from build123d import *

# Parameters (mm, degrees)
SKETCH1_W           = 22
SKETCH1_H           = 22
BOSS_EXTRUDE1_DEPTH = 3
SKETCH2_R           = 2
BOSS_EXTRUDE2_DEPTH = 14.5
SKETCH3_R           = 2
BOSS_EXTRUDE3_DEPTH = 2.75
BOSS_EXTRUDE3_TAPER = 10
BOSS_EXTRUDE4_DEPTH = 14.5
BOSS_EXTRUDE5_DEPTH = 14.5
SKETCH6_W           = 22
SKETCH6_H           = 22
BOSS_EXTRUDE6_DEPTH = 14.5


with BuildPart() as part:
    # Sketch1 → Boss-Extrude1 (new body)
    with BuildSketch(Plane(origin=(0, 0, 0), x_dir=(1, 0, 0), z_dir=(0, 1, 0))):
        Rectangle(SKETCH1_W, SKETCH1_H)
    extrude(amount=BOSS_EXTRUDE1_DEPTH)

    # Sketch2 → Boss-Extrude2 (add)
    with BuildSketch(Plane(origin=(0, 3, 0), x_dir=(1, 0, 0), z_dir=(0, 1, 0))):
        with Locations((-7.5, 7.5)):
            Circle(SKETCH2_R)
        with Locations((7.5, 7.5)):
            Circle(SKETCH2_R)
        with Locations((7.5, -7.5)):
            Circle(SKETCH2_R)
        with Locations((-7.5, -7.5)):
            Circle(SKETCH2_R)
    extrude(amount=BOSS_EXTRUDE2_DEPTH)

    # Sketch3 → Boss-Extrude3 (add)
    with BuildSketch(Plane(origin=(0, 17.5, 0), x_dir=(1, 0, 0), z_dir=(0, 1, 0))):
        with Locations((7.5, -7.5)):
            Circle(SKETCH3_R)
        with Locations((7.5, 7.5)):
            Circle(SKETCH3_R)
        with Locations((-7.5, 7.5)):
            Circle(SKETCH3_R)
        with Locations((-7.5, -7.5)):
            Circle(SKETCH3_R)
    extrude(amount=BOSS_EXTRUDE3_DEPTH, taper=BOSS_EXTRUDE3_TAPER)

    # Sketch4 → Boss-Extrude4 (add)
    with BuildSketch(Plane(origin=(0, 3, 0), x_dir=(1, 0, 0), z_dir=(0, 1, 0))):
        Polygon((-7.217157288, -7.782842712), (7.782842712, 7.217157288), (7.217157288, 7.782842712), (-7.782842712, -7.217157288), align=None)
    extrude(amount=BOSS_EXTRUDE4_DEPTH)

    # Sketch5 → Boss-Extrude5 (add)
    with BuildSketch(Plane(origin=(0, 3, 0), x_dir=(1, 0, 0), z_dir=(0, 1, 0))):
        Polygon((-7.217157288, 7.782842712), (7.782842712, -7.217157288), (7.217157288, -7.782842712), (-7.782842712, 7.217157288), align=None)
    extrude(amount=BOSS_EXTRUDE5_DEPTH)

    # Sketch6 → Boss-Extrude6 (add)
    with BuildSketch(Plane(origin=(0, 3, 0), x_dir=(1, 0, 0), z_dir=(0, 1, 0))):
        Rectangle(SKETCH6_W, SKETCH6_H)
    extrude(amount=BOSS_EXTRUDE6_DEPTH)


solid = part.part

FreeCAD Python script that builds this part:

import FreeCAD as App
import Part
import Sketcher
from FreeCAD import Vector
Q = App.Units.Quantity

doc = App.newDocument("Part")
body = doc.addObject("PartDesign::Body", "Body")

# Sketch on XZ plane
sketch1 = body.newObject("Sketcher::SketchObject", "Sketch")
sketch1.AttachmentSupport = (doc.getObject("XZ_Plane"), [""])
sketch1.MapMode = "FlatFace"
sketch1.addGeometry(Part.LineSegment(Vector(-11, -11, 0), Vector(-11, 11, 0)), False)
sketch1.addGeometry(Part.LineSegment(Vector(-11, 11, 0), Vector(11, 11, 0)), False)
sketch1.addGeometry(Part.LineSegment(Vector(11, 11, 0), Vector(11, -11, 0)), False)
sketch1.addGeometry(Part.LineSegment(Vector(11, -11, 0), Vector(-11, -11, 0)), False)
sketch1.addConstraint(Sketcher.Constraint("Coincident", 0, 2, 1, 1))
sketch1.addConstraint(Sketcher.Constraint("Coincident", 1, 2, 2, 1))
sketch1.addConstraint(Sketcher.Constraint("Coincident", 2, 2, 3, 1))
sketch1.addConstraint(Sketcher.Constraint("Coincident", 3, 2, 0, 1))
sketch1.addConstraint(Sketcher.Constraint("Vertical", 0))
sketch1.addConstraint(Sketcher.Constraint("Horizontal", 1))
sketch1.addConstraint(Sketcher.Constraint("Vertical", 2))
sketch1.addConstraint(Sketcher.Constraint("Horizontal", 3))
sketch1.addConstraint(Sketcher.Constraint("Symmetric", 0, 2, 2, 2, -1, 1))
sketch1.addConstraint(Sketcher.Constraint("Equal", 3, 0))
sketch1.addConstraint(Sketcher.Constraint("DistanceX", 1, 1, 1, 2, Q("22 mm")))
pad1 = body.newObject("PartDesign::Pad", "Pad")
pad1.Profile = sketch1
pad1.Length = 3
pad1.Reversed = True

# Sketch on XZ plane
sketch2 = body.newObject("Sketcher::SketchObject", "Sketch001")
sketch2.AttachmentSupport = (doc.getObject("XZ_Plane"), [""])
sketch2.MapMode = "FlatFace"
sketch2.AttachmentOffset = App.Placement(Vector(0, 0, -3), App.Rotation())
sketch2.addGeometry(Part.Circle(Vector(-7.5, -7.5, 0), Vector(0, 0, 1), 2), False)
sketch2.addGeometry(Part.Circle(Vector(7.5, -7.5, 0), Vector(0, 0, 1), 2), False)
sketch2.addGeometry(Part.Circle(Vector(7.5, 7.5, 0), Vector(0, 0, 1), 2), False)
sketch2.addGeometry(Part.Circle(Vector(-7.5, 7.5, 0), Vector(0, 0, 1), 2), False)
sketch2.addConstraint(Sketcher.Constraint("Equal", 0, 1))
sketch2.addConstraint(Sketcher.Constraint("Equal", 1, 2))
sketch2.addConstraint(Sketcher.Constraint("Equal", 2, 3))
sketch2.addConstraint(Sketcher.Constraint("Symmetric", 0, 3, 2, 3, -1, 1))
sketch2.addConstraint(Sketcher.Constraint("Symmetric", 1, 3, 3, 3, -1, 1))
sketch2.addConstraint(Sketcher.Constraint("Symmetric", 0, 3, 1, 3, -2))
sketch2.addConstraint(Sketcher.Constraint("Diameter", 0, Q("4 mm")))
sketch2.addConstraint(Sketcher.Constraint("DistanceX", 0, 3, 1, 3, Q("15 mm")))
sketch2.addConstraint(Sketcher.Constraint("DistanceY", 1, 3, 2, 3, Q("15 mm")))
pad2 = body.newObject("PartDesign::Pad", "Pad001")
pad2.Profile = sketch2
pad2.Length = 14.5
pad2.Reversed = True

# Sketch on XZ plane
sketch3 = body.newObject("Sketcher::SketchObject", "Sketch002")
sketch3.AttachmentSupport = (doc.getObject("XZ_Plane"), [""])
sketch3.MapMode = "FlatFace"
sketch3.AttachmentOffset = App.Placement(Vector(0, 0, -17.5), App.Rotation())
sketch3.addGeometry(Part.Circle(Vector(7.5, 7.5, 0), Vector(0, 0, 1), 2), False)
sketch3.addGeometry(Part.Circle(Vector(7.5, -7.5, 0), Vector(0, 0, 1), 2), False)
sketch3.addGeometry(Part.Circle(Vector(-7.5, -7.5, 0), Vector(0, 0, 1), 2), False)
sketch3.addGeometry(Part.Circle(Vector(-7.5, 7.5, 0), Vector(0, 0, 1), 2), False)
sketch3.addConstraint(Sketcher.Constraint("Equal", 0, 1))
sketch3.addConstraint(Sketcher.Constraint("Equal", 1, 2))
sketch3.addConstraint(Sketcher.Constraint("Equal", 2, 3))
sketch3.addConstraint(Sketcher.Constraint("Symmetric", 0, 3, 2, 3, -1, 1))
sketch3.addConstraint(Sketcher.Constraint("Symmetric", 1, 3, 3, 3, -1, 1))
sketch3.addConstraint(Sketcher.Constraint("Symmetric", 1, 3, 2, 3, -2))
sketch3.addConstraint(Sketcher.Constraint("Diameter", 0, Q("4 mm")))
sketch3.addConstraint(Sketcher.Constraint("DistanceY", 1, 3, 0, 3, Q("15 mm")))
sketch3.addConstraint(Sketcher.Constraint("DistanceX", 2, 3, 1, 3, Q("15 mm")))
pad3 = body.newObject("PartDesign::Pad", "Pad002")
pad3.Profile = sketch3
pad3.Length = 2.75
pad3.Reversed = True
pad3.TaperAngle = -10

# Sketch on XZ plane
sketch4 = body.newObject("Sketcher::SketchObject", "Sketch003")
sketch4.AttachmentSupport = (doc.getObject("XZ_Plane"), [""])
sketch4.MapMode = "FlatFace"
sketch4.AttachmentOffset = App.Placement(Vector(0, 0, -3), App.Rotation())
sketch4.addGeometry(Part.LineSegment(Vector(-7.217157, 7.782843, 0), Vector(7.782843, -7.217157, 0)), False)
sketch4.addGeometry(Part.LineSegment(Vector(7.782843, -7.217157, 0), Vector(7.217157, -7.782843, 0)), False)
sketch4.addGeometry(Part.LineSegment(Vector(7.217157, -7.782843, 0), Vector(-7.782843, 7.217157, 0)), False)
sketch4.addGeometry(Part.LineSegment(Vector(-7.782843, 7.217157, 0), Vector(-7.217157, 7.782843, 0)), False)
sketch4.addConstraint(Sketcher.Constraint("Coincident", 0, 2, 1, 1))
sketch4.addConstraint(Sketcher.Constraint("Coincident", 1, 2, 2, 1))
sketch4.addConstraint(Sketcher.Constraint("Coincident", 2, 2, 3, 1))
sketch4.addConstraint(Sketcher.Constraint("Coincident", 3, 2, 0, 1))
sketch4.addConstraint(Sketcher.Constraint("Symmetric", 0, 2, 2, 2, -1, 1))
sketch4.addConstraint(Sketcher.Constraint("Symmetric", 1, 2, 3, 2, -1, 1))
sketch4.addConstraint(Sketcher.Constraint("Perpendicular", 0, 1))
sketch4.addConstraint(Sketcher.Constraint("Angle", 0, Q("-45 deg")))
sketch4.addConstraint(Sketcher.Constraint("DistanceX", 2, 2, 1, 2, Q("15 mm")))
sketch4.addConstraint(Sketcher.Constraint("Distance", 1, Q("0.8 mm")))
pad4 = body.newObject("PartDesign::Pad", "Pad003")
pad4.Profile = sketch4
pad4.Length = 14.5
pad4.Reversed = True

# Sketch on XZ plane
sketch5 = body.newObject("Sketcher::SketchObject", "Sketch004")
sketch5.AttachmentSupport = (doc.getObject("XZ_Plane"), [""])
sketch5.MapMode = "FlatFace"
sketch5.AttachmentOffset = App.Placement(Vector(0, 0, -3), App.Rotation())
sketch5.addGeometry(Part.LineSegment(Vector(7.782843, 7.217157, 0), Vector(-7.217157, -7.782843, 0)), False)
sketch5.addGeometry(Part.LineSegment(Vector(-7.217157, -7.782843, 0), Vector(-7.782843, -7.217157, 0)), False)
sketch5.addGeometry(Part.LineSegment(Vector(-7.782843, -7.217157, 0), Vector(7.217157, 7.782843, 0)), False)
sketch5.addGeometry(Part.LineSegment(Vector(7.217157, 7.782843, 0), Vector(7.782843, 7.217157, 0)), False)
sketch5.addConstraint(Sketcher.Constraint("Coincident", 0, 2, 1, 1))
sketch5.addConstraint(Sketcher.Constraint("Coincident", 1, 2, 2, 1))
sketch5.addConstraint(Sketcher.Constraint("Coincident", 2, 2, 3, 1))
sketch5.addConstraint(Sketcher.Constraint("Coincident", 3, 2, 0, 1))
sketch5.addConstraint(Sketcher.Constraint("Symmetric", 0, 2, 2, 2, -1, 1))
sketch5.addConstraint(Sketcher.Constraint("Symmetric", 1, 2, 3, 2, -1, 1))
sketch5.addConstraint(Sketcher.Constraint("Perpendicular", 0, 1))
sketch5.addConstraint(Sketcher.Constraint("Angle", 0, Q("-135 deg")))
sketch5.addConstraint(Sketcher.Constraint("DistanceX", 1, 2, 2, 2, Q("15 mm")))
sketch5.addConstraint(Sketcher.Constraint("Distance", 1, Q("0.8 mm")))
pad5 = body.newObject("PartDesign::Pad", "Pad004")
pad5.Profile = sketch5
pad5.Length = 14.5
pad5.Reversed = True

# Sketch on XZ plane
sketch6 = body.newObject("Sketcher::SketchObject", "Sketch005")
sketch6.AttachmentSupport = (doc.getObject("XZ_Plane"), [""])
sketch6.MapMode = "FlatFace"
sketch6.AttachmentOffset = App.Placement(Vector(0, 0, -3), App.Rotation())
sketch6.addGeometry(Part.LineSegment(Vector(-11, -11, 0), Vector(-11, 11, 0)), False)
sketch6.addGeometry(Part.LineSegment(Vector(-11, 11, 0), Vector(11, 11, 0)), False)
sketch6.addGeometry(Part.LineSegment(Vector(11, 11, 0), Vector(11, -11, 0)), False)
sketch6.addGeometry(Part.LineSegment(Vector(11, -11, 0), Vector(-11, -11, 0)), False)
sketch6.addConstraint(Sketcher.Constraint("Coincident", 0, 2, 1, 1))
sketch6.addConstraint(Sketcher.Constraint("Coincident", 1, 2, 2, 1))
sketch6.addConstraint(Sketcher.Constraint("Coincident", 2, 2, 3, 1))
sketch6.addConstraint(Sketcher.Constraint("Coincident", 3, 2, 0, 1))
sketch6.addConstraint(Sketcher.Constraint("Vertical", 0))
sketch6.addConstraint(Sketcher.Constraint("Horizontal", 1))
sketch6.addConstraint(Sketcher.Constraint("Vertical", 2))
sketch6.addConstraint(Sketcher.Constraint("Horizontal", 3))
sketch6.addConstraint(Sketcher.Constraint("Symmetric", 0, 2, 2, 2, -1, 1))
sketch6.addConstraint(Sketcher.Constraint("Equal", 3, 0))
sketch6.addConstraint(Sketcher.Constraint("DistanceX", 1, 1, 1, 2, Q("22 mm")))
pad6 = body.newObject("PartDesign::Pad", "Pad005")
pad6.Profile = sketch6
pad6.Length = 14.5
pad6.Reversed = True

doc.recompute()
